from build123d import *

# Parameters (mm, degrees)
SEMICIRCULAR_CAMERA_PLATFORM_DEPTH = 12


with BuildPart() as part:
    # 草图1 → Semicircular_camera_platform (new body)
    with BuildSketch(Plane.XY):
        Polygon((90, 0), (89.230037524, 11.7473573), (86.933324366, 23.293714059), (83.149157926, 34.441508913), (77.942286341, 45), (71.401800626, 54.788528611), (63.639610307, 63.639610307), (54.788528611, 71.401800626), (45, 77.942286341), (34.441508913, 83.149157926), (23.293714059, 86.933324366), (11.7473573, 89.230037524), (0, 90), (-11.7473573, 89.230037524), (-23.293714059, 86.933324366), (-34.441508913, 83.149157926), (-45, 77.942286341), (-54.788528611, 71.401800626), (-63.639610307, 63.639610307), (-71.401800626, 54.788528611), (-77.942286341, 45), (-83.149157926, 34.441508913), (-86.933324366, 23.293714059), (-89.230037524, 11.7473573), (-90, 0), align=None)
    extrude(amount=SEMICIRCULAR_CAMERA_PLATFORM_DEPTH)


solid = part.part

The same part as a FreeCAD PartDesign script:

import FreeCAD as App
import Part
import Sketcher

V = App.Vector
Q = App.Units.Quantity

doc = App.newDocument("Part")
body = doc.addObject("PartDesign::Body", "Body")

sketch1 = doc.addObject("Sketcher::SketchObject", "Sketch")
body.addObject(sketch1)
sketch1.AttachmentSupport = (doc.XY_Plane, [""])
sketch1.MapMode = "FlatFace"
sketch1.addGeometry(Part.LineSegment(V(90, 0, 0), V(89.230038, 11.747357, 0)), False)
sketch1.addGeometry(Part.LineSegment(V(89.230038, 11.747357, 0), V(86.933324, 23.293714, 0)), False)
sketch1.addGeometry(Part.LineSegment(V(86.933324, 23.293714, 0), V(83.149158, 34.441509, 0)), False)
sketch1.addGeometry(Part.LineSegment(V(83.149158, 34.441509, 0), V(77.942286, 45, 0)), False)
sketch1.addGeometry(Part.LineSegment(V(77.942286, 45, 0), V(71.401801, 54.788529, 0)), False)
sketch1.addGeometry(Part.LineSegment(V(71.401801, 54.788529, 0), V(63.63961, 63.63961, 0)), False)
sketch1.addGeometry(Part.LineSegment(V(63.63961, 63.63961, 0), V(54.788529, 71.401801, 0)), False)
sketch1.addGeometry(Part.LineSegment(V(54.788529, 71.401801, 0), V(45, 77.942286, 0)), False)
sketch1.addGeometry(Part.LineSegment(V(45, 77.942286, 0), V(34.441509, 83.149158, 0)), False)
sketch1.addGeometry(Part.LineSegment(V(34.441509, 83.149158, 0), V(23.293714, 86.933324, 0)), False)
sketch1.addGeometry(Part.LineSegment(V(23.293714, 86.933324, 0), V(11.747357, 89.230038, 0)), False)
sketch1.addGeometry(Part.LineSegment(V(11.747357, 89.230038, 0), V(0, 90, 0)), False)
sketch1.addGeometry(Part.LineSegment(V(0, 90, 0), V(-11.747357, 89.230038, 0)), False)
sketch1.addGeometry(Part.LineSegment(V(-11.747357, 89.230038, 0), V(-23.293714, 86.933324, 0)), False)
sketch1.addGeometry(Part.LineSegment(V(-23.293714, 86.933324, 0), V(-34.441509, 83.149158, 0)), False)
sketch1.addGeometry(Part.LineSegment(V(-34.441509, 83.149158, 0), V(-45, 77.942286, 0)), False)
sketch1.addGeometry(Part.LineSegment(V(-45, 77.942286, 0), V(-54.788529, 71.401801, 0)), False)
sketch1.addGeometry(Part.LineSegment(V(-54.788529, 71.401801, 0), V(-63.63961, 63.63961, 0)), False)
sketch1.addGeometry(Part.LineSegment(V(-63.63961, 63.63961, 0), V(-71.401801, 54.788529, 0)), False)
sketch1.addGeometry(Part.LineSegment(V(-71.401801, 54.788529, 0), V(-77.942286, 45, 0)), False)
sketch1.addGeometry(Part.LineSegment(V(-77.942286, 45, 0), V(-83.149158, 34.441509, 0)), False)
sketch1.addGeometry(Part.LineSegment(V(-83.149158, 34.441509, 0), V(-86.933324, 23.293714, 0)), False)
sketch1.addGeometry(Part.LineSegment(V(-86.933324, 23.293714, 0), V(-89.230038, 11.747357, 0)), False)
sketch1.addGeometry(Part.LineSegment(V(-89.230038, 11.747357, 0), V(-90, 0, 0)), False)
sketch1.addGeometry(Part.LineSegment(V(-90, 0, 0), V(90, 0, 0)), False)
sketch1.addConstraint(Sketcher.Constraint("Coincident", 0, 2, 1, 1))
sketch1.addConstraint(Sketcher.Constraint("Coincident", 1, 2, 2, 1))
sketch1.addConstraint(Sketcher.Constraint("Coincident", 2, 2, 3, 1))
sketch1.addConstraint(Sketcher.Constraint("Coincident", 3, 2, 4, 1))
sketch1.addConstraint(Sketcher.Constraint("Coincident", 4, 2, 5, 1))
sketch1.addConstraint(Sketcher.Constraint("Coincident", 5, 2, 6, 1))
sketch1.addConstraint(Sketcher.Constraint("Coincident", 6, 2, 7, 1))
sketch1.addConstraint(Sketcher.Constraint("Coincident", 7, 2, 8, 1))
sketch1.addConstraint(Sketcher.Constraint("Coincident", 8, 2, 9, 1))
sketch1.addConstraint(Sketcher.Constraint("Coincident", 9, 2, 10, 1))
sketch1.addConstraint(Sketcher.Constraint("Coincident", 10, 2, 11, 1))
sketch1.addConstraint(Sketcher.Constraint("Coincident", 11, 2, 12, 1))
sketch1.addConstraint(Sketcher.Constraint("Coincident", 12, 2, 13, 1))
sketch1.addConstraint(Sketcher.Constraint("Coincident", 13, 2, 14, 1))
sketch1.addConstraint(Sketcher.Constraint("Coincident", 14, 2, 15, 1))
sketch1.addConstraint(Sketcher.Constraint("Coincident", 15, 2, 16, 1))
sketch1.addConstraint(Sketcher.Constraint("Coincident", 16, 2, 17, 1))
sketch1.addConstraint(Sketcher.Constraint("Coincident", 17, 2, 18, 1))
sketch1.addConstraint(Sketcher.Constraint("Coincident", 18, 2, 19, 1))
sketch1.addConstraint(Sketcher.Constraint("Coincident", 19, 2, 20, 1))
sketch1.addConstraint(Sketcher.Constraint("Coincident", 20, 2, 21, 1))
sketch1.addConstraint(Sketcher.Constraint("Coincident", 21, 2, 22, 1))
sketch1.addConstraint(Sketcher.Constraint("Coincident", 22, 2, 23, 1))
sketch1.addConstraint(Sketcher.Constraint("Coincident", 23, 2, 24, 1))
sketch1.addConstraint(Sketcher.Constraint("Coincident", 24, 2, 0, 1))
sketch1.addConstraint(Sketcher.Constraint("Horizontal", 24))
sketch1.addConstraint(Sketcher.Constraint("Symmetric", 23, 2, 24, 2, -1, 1))
sketch1.addConstraint(Sketcher.Constraint("Symmetric", 10, 2, 12, 2, -2))
sketch1.addConstraint(Sketcher.Constraint("Symmetric", 9, 2, 13, 2, -2))
sketch1.addConstraint(Sketcher.Constraint("Symmetric", 8, 2, 14, 2, -2))
sketch1.addConstraint(Sketcher.Constraint("Symmetric", 7, 2, 15, 2, -2))
sketch1.addConstraint(Sketcher.Constraint("Symmetric", 6, 2, 16, 2, -2))
sketch1.addConstraint(Sketcher.Constraint("Symmetric", 5, 2, 17, 2, -2))
sketch1.addConstraint(Sketcher.Constraint("Symmetric", 4, 2, 18, 2, -2))
sketch1.addConstraint(Sketcher.Constraint("Symmetric", 3, 2, 19, 2, -2))
sketch1.addConstraint(Sketcher.Constraint("Symmetric", 2, 2, 20, 2, -2))
sketch1.addConstraint(Sketcher.Constraint("Symmetric", 1, 2, 21, 2, -2))
sketch1.addConstraint(Sketcher.Constraint("Symmetric", 0, 2, 22, 2, -2))
sketch1.addConstraint(Sketcher.Constraint("PointOnObject", 11, 2, -2))
sketch1.addConstraint(Sketcher.Constraint("Perpendicular", 0, 12))
sketch1.addConstraint(Sketcher.Constraint("Perpendicular", 1, 13))
sketch1.addConstraint(Sketcher.Constraint("Perpendicular", 2, 14))
sketch1.addConstraint(Sketcher.Constraint("Perpendicular", 3, 15))
sketch1.addConstraint(Sketcher.Constraint("Perpendicular", 4, 16))
sketch1.addConstraint(Sketcher.Constraint("Perpendicular", 5, 17))
sketch1.addConstraint(Sketcher.Constraint("Equal", 0, 1))
sketch1.addConstraint(Sketcher.Constraint("Equal", 1, 2))
sketch1.addConstraint(Sketcher.Constraint("Equal", 2, 3))
sketch1.addConstraint(Sketcher.Constraint("Equal", 3, 4))
sketch1.addConstraint(Sketcher.Constraint("Equal", 4, 5))
sketch1.addConstraint(Sketcher.Constraint("Equal", 5, 6))
sketch1.addConstraint(Sketcher.Constraint("Equal", 6, 7))
sketch1.addConstraint(Sketcher.Constraint("Equal", 7, 8))
sketch1.addConstraint(Sketcher.Constraint("Equal", 8, 9))
sketch1.addConstraint(Sketcher.Constraint("Equal", 9, 10))
sketch1.addConstraint(Sketcher.Constraint("Equal", 10, 11))
sketch1.addConstraint(Sketcher.Constraint("DistanceX", 24, 1, 24, 2, Q("180 mm")))
sketch1.addConstraint(Sketcher.Constraint("DistanceY", -1, 1, 3, 2, Q("45 mm")))
sketch1.addConstraint(Sketcher.Constraint("Angle", 0, Q("93.75 deg")))
sketch1.addConstraint(Sketcher.Constraint("Angle", 1, Q("101.25 deg")))
sketch1.addConstraint(Sketcher.Constraint("Angle", 2, Q("108.75 deg")))
sketch1.addConstraint(Sketcher.Constraint("Angle", 3, Q("116.25 deg")))
sketch1.addConstraint(Sketcher.Constraint("Angle", 4, Q("123.75 deg")))
pad1 = doc.addObject("PartDesign::Pad", "Pad")
body.addObject(pad1)
pad1.Profile = sketch1
pad1.Length = 12

doc.recompute()
